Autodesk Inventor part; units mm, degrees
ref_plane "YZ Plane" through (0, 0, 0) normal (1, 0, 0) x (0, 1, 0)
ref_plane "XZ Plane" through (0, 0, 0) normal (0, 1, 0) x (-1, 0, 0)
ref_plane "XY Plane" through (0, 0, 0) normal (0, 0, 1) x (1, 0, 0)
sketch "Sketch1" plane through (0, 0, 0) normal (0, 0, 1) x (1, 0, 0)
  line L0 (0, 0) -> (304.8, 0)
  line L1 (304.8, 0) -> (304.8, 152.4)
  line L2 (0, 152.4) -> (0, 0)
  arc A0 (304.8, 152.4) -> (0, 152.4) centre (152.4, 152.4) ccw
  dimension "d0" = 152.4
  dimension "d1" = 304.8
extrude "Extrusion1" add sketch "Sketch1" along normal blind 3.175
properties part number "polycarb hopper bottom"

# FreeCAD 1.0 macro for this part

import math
import FreeCAD as App
import Part
import Sketcher

V = App.Vector
Q = App.Units.Quantity

doc = App.newDocument("Part")
body = doc.addObject("PartDesign::Body", "Body")

sketch1 = body.newObject("Sketcher::SketchObject", "Sketch")
sketch1.AttachmentSupport = (doc.getObject("XY_Plane"), [""])
sketch1.MapMode = "FlatFace"
sketch1.addGeometry(Part.LineSegment(V(0, 152, 0), V(0, 0, 0)), False)
sketch1.addGeometry(Part.LineSegment(V(0, 0, 0), V(305, 0, 0)), False)
sketch1.addGeometry(Part.LineSegment(V(305, 0, 0), V(305, 152, 0)), False)
sketch1.addGeometry(Part.ArcOfCircle(Part.Circle(V(152, 152, 0), V(0, 0, 1), 152), math.radians(0), math.radians(180)), False)
sketch1.addConstraint(Sketcher.Constraint("Coincident", 0, 2, 1, 1))
sketch1.addConstraint(Sketcher.Constraint("Coincident", 1, 2, 2, 1))
sketch1.addConstraint(Sketcher.Constraint("Tangent", 2, 2, 3, 1))
sketch1.addConstraint(Sketcher.Constraint("Tangent", 3, 2, 0, 1))
sketch1.addConstraint(Sketcher.Constraint("Vertical", 0))
sketch1.addConstraint(Sketcher.Constraint("Horizontal", 1))
sketch1.addConstraint(Sketcher.Constraint("Vertical", 2))
sketch1.addConstraint(Sketcher.Constraint("Coincident", 0, 2, -1, 1))
sketch1.addConstraint(Sketcher.Constraint("Radius", 3, Q("6 in")))
sketch1.addConstraint(Sketcher.Constraint("DistanceY", 0, 2, 0, 1, Q("6 in")))
pad1 = body.newObject("PartDesign::Pad", "Pad")
pad1.Profile = sketch1
pad1.Length = Q("0.125 in")

doc.recompute()
